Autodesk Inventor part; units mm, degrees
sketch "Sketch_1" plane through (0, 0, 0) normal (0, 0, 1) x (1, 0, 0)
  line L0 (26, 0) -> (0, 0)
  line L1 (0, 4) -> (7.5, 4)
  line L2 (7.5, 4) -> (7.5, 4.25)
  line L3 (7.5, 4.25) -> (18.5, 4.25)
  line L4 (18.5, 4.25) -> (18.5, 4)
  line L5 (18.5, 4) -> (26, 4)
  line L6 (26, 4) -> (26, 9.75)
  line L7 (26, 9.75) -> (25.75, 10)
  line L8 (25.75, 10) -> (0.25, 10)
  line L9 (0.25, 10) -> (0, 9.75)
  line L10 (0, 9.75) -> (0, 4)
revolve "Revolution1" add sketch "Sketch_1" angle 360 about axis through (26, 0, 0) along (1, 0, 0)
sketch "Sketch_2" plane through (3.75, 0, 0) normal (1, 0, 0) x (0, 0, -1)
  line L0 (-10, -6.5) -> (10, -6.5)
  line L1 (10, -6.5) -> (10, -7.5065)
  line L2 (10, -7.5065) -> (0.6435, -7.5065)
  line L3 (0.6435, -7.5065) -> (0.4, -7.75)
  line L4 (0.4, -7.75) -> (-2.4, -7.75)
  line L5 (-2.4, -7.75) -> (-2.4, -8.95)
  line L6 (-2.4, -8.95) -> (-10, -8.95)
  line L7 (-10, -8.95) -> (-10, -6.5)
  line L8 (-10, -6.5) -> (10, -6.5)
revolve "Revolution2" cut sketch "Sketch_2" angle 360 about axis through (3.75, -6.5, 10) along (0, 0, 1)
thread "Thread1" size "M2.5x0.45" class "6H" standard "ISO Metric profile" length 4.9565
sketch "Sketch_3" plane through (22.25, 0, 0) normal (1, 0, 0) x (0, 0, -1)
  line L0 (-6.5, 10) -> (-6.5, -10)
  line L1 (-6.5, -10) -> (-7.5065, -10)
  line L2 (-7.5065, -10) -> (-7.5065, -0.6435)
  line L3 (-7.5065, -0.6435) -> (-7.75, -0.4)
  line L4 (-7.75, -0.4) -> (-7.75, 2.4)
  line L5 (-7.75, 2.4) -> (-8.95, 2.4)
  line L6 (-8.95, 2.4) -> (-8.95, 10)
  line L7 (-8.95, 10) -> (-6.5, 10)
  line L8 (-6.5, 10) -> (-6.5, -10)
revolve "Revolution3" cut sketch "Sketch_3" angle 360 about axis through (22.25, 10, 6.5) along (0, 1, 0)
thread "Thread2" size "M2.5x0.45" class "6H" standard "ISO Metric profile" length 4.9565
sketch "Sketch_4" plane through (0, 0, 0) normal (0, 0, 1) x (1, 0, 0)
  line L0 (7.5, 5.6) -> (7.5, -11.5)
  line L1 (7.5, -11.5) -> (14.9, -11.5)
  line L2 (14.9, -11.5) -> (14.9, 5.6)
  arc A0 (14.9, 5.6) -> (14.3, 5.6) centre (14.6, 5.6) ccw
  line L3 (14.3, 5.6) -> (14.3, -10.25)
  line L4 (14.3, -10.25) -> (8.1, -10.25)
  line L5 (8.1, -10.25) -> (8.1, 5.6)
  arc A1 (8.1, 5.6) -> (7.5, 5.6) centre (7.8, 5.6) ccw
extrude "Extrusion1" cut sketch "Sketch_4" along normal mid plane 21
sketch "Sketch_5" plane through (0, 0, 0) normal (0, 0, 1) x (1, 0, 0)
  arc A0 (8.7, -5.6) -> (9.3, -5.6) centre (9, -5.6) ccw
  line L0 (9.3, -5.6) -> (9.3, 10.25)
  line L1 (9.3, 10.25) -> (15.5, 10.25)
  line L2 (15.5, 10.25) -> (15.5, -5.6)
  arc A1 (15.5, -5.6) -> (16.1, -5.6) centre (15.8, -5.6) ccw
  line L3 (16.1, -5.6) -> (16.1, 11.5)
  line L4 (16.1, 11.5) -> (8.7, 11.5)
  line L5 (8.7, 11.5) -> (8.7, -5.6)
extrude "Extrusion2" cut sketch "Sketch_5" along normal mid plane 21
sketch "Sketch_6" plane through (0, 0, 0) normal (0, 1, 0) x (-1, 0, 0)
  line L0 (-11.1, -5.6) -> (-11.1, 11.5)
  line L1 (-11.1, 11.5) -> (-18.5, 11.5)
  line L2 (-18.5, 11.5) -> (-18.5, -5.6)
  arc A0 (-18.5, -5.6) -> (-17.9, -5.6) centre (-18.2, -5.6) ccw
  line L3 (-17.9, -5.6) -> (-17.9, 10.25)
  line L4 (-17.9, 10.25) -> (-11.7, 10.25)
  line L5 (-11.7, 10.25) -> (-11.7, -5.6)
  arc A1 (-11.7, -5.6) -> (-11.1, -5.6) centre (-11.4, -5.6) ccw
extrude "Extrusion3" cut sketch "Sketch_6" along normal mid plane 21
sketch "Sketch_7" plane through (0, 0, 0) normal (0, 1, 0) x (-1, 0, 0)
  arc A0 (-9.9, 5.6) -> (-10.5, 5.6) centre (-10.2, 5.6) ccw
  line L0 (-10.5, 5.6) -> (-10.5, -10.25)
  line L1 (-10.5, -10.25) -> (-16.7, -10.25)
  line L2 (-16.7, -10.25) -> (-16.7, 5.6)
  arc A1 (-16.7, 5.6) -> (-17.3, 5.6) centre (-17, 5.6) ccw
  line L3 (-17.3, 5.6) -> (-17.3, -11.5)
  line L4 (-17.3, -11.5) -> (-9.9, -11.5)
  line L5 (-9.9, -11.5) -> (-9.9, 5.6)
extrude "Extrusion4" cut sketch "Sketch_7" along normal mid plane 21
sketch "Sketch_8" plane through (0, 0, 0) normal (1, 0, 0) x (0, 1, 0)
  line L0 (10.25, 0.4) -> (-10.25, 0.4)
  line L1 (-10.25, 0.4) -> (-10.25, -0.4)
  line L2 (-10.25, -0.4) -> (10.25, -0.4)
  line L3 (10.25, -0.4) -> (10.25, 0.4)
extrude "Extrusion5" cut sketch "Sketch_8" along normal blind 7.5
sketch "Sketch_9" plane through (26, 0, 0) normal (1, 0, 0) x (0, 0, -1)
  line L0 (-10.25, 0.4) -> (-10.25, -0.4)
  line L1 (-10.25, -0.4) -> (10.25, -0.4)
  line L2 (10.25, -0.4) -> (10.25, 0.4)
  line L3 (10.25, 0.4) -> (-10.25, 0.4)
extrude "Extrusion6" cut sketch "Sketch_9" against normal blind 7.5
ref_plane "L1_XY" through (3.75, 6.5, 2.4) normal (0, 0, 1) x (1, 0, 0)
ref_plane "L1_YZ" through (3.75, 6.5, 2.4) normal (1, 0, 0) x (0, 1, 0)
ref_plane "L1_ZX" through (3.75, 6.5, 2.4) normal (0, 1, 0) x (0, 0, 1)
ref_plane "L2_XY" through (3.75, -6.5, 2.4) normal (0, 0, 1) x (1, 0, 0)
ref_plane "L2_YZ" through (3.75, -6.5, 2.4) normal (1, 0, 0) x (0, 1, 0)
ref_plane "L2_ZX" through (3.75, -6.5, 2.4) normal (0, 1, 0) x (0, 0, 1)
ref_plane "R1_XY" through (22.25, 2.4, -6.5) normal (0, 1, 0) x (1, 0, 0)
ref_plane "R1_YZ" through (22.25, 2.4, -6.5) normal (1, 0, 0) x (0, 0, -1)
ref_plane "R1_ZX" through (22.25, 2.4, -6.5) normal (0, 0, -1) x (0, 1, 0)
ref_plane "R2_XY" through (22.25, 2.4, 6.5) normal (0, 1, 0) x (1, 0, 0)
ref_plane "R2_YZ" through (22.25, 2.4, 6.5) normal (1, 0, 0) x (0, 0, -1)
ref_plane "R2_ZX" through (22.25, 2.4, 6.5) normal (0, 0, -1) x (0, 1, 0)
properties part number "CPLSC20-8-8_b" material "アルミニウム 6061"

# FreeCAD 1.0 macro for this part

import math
import FreeCAD as App
import Part
import Sketcher

V = App.Vector
Q = App.Units.Quantity


def add_polygon(sketch, points):
    """Adds a closed chain of lines whose ends are joined by coincident constraints."""
    first, n = sketch.GeometryCount, len(points)
    for a, b in zip(points, points[1:] + points[:1]):
        sketch.addGeometry(Part.LineSegment(App.Vector(*a, 0), App.Vector(*b, 0)), False)
    for i in range(n):
        sketch.addConstraint(Sketcher.Constraint("Coincident", first + i, 2, first + (i + 1) % n, 1))

doc = App.newDocument("Part")
body = doc.addObject("PartDesign::Body", "Body")

# Sketch on XY plane
sketch1 = body.newObject("Sketcher::SketchObject", "Sketch")
sketch1.AttachmentSupport = (doc.getObject("XY_Plane"), [""])
sketch1.MapMode = "FlatFace"
add_polygon(sketch1, [(0, 9.75), (0, 4), (7.5, 4), (7.5, 4.25), (18.5, 4.25), (18.5, 4), (26, 4), (26, 9.75), (25.75, 10), (0.25, 10)])  # lines 0-9
sketch1.addConstraint(Sketcher.Constraint("Vertical", 0))
sketch1.addConstraint(Sketcher.Constraint("Horizontal", 1))
sketch1.addConstraint(Sketcher.Constraint("Vertical", 2))
sketch1.addConstraint(Sketcher.Constraint("Horizontal", 3))
sketch1.addConstraint(Sketcher.Constraint("Vertical", 4))
sketch1.addConstraint(Sketcher.Constraint("Horizontal", 5))
sketch1.addConstraint(Sketcher.Constraint("Vertical", 6))
sketch1.addConstraint(Sketcher.Constraint("Horizontal", 8))
sketch1.addConstraint(Sketcher.Constraint("PointOnObject", 0, 2, -2))
sketch1.addConstraint(Sketcher.Constraint("Perpendicular", 7, 9))
sketch1.addConstraint(Sketcher.Constraint("Horizontal", 1, 2, 4, 2))
sketch1.addConstraint(Sketcher.Constraint("Horizontal", 6, 2, 9, 2))
sketch1.addConstraint(Sketcher.Constraint("Equal", 1, 5))
sketch1.addConstraint(Sketcher.Constraint("Equal", 7, 9))
sketch1.addConstraint(Sketcher.Constraint("DistanceX", 3, 1, 3, 2, 11.0))
sketch1.addConstraint(Sketcher.Constraint("DistanceX", 1, 1, 1, 2, 7.5))
sketch1.addConstraint(Sketcher.Constraint("DistanceX", 8, 2, 8, 1, 25.5))
sketch1.addConstraint(Sketcher.Constraint("DistanceY", -1, 1, 0, 2, 4.0))
sketch1.addConstraint(Sketcher.Constraint("DistanceY", -1, 1, 7, 2, 10.0))
sketch1.addConstraint(Sketcher.Constraint("DistanceY", 2, 1, 2, 2, 0.25))
revolution = body.newObject("PartDesign::Revolution", "Revolution")
revolution.Profile = sketch1
revolution.ReferenceAxis = (sketch1, ["H_Axis"])
revolution.Angle = 360

# Sketch on YZ plane
sketch2 = body.newObject("Sketcher::SketchObject", "Sketch001")
sketch2.AttachmentSupport = (doc.getObject("YZ_Plane"), [""])
sketch2.MapMode = "FlatFace"
sketch2.AttachmentOffset = App.Placement(V(0, 0, 3.75), App.Rotation())
add_polygon(sketch2, [(-6.5, -10), (-6.5, 10), (-8.95, 10), (-8.95, 2.4), (-7.75, 2.4), (-7.75, -0.4), (-7.5065, -0.6435), (-7.5065, -10)])  # lines 0-7
sketch2.addGeometry(Part.LineSegment(V(-6.5, -10, 0), V(-6.5, 10, 0)), True)  # axis
sketch2.addConstraint(Sketcher.Constraint("Vertical", 0))
sketch2.addConstraint(Sketcher.Constraint("Horizontal", 1))
sketch2.addConstraint(Sketcher.Constraint("Vertical", 2))
sketch2.addConstraint(Sketcher.Constraint("Horizontal", 3))
sketch2.addConstraint(Sketcher.Constraint("Vertical", 4))
sketch2.addConstraint(Sketcher.Constraint("Vertical", 6))
sketch2.addConstraint(Sketcher.Constraint("Horizontal", 7))
sketch2.addConstraint(Sketcher.Constraint("Vertical", 8))
sketch2.addConstraint(Sketcher.Constraint("Coincident", 8, 1, 7, 2))
sketch2.addConstraint(Sketcher.Constraint("Horizontal", 1, 2, 8, 2))
sketch2.addConstraint(Sketcher.Constraint("DistanceY", 0, 1, 0, 2, 20.0))
sketch2.addConstraint(Sketcher.Constraint("Angle", 5, Q("-45 deg")))
sketch2.addConstraint(Sketcher.Constraint("DistanceX", 3, 1, 3, 2, 1.2))
sketch2.addConstraint(Sketcher.Constraint("DistanceY", 2, 2, 2, 1, 7.6))
sketch2.addConstraint(Sketcher.Constraint("DistanceY", 4, 2, 4, 1, 2.8))
sketch2.addConstraint(Sketcher.Constraint("DistanceY", -1, 1, 0, 2, 10.0))
sketch2.addConstraint(Sketcher.Constraint("DistanceX", 1, 2, 1, 1, 2.45))
sketch2.addConstraint(Sketcher.Constraint("DistanceX", 0, 2, -1, 1, 6.5))
sketch2.addConstraint(Sketcher.Constraint("DistanceX", 7, 1, 7, 2, 1.0065))
groove = body.newObject("PartDesign::Groove", "Groove")
groove.Profile = sketch2
groove.ReferenceAxis = (sketch2, ["Axis0"])
groove.Angle = 360

# Sketch on YZ plane
sketch3 = body.newObject("Sketcher::SketchObject", "Sketch002")
sketch3.AttachmentSupport = (doc.getObject("YZ_Plane"), [""])
sketch3.MapMode = "FlatFace"
sketch3.AttachmentOffset = App.Placement(V(0, 0, 22.25), App.Rotation())
add_polygon(sketch3, [(-10, 6.5), (10, 6.5), (10, 8.95), (2.4, 8.95), (2.4, 7.75), (-0.4, 7.75), (-0.6435, 7.5065), (-10, 7.5065)])  # lines 0-7
sketch3.addGeometry(Part.LineSegment(V(-10, 6.5, 0), V(10, 6.5, 0)), True)  # axis
sketch3.addConstraint(Sketcher.Constraint("Horizontal", 0))
sketch3.addConstraint(Sketcher.Constraint("Vertical", 1))
sketch3.addConstraint(Sketcher.Constraint("Horizontal", 2))
sketch3.addConstraint(Sketcher.Constraint("Vertical", 3))
sketch3.addConstraint(Sketcher.Constraint("Horizontal", 4))
sketch3.addConstraint(Sketcher.Constraint("Horizontal", 6))
sketch3.addConstraint(Sketcher.Constraint("Vertical", 7))
sketch3.addConstraint(Sketcher.Constraint("Horizontal", 8))
sketch3.addConstraint(Sketcher.Constraint("Coincident", 8, 1, 7, 2))
sketch3.addConstraint(Sketcher.Constraint("Vertical", 1, 2, 8, 2))
sketch3.addConstraint(Sketcher.Constraint("DistanceX", 0, 1, 0, 2, 20.0))
sketch3.addConstraint(Sketcher.Constraint("Angle", 5, Q("-135 deg")))
sketch3.addConstraint(Sketcher.Constraint("DistanceX", 2, 2, 2, 1, 7.6))
sketch3.addConstraint(Sketcher.Constraint("DistanceX", 4, 2, 4, 1, 2.8))
sketch3.addConstraint(Sketcher.Constraint("DistanceY", 3, 2, 3, 1, 1.2))
sketch3.addConstraint(Sketcher.Constraint("DistanceX", -1, 1, 0, 2, 10.0))
sketch3.addConstraint(Sketcher.Constraint("DistanceY", 1, 1, 1, 2, 2.45))
sketch3.addConstraint(Sketcher.Constraint("DistanceY", -1, 1, 0, 2, 6.5))
sketch3.addConstraint(Sketcher.Constraint("DistanceX", 6, 2, 6, 1, 9.3565))
groove2 = body.newObject("PartDesign::Groove", "Groove001")
groove2.Profile = sketch3
groove2.ReferenceAxis = (sketch3, ["Axis0"])
groove2.Angle = 360

# Sketch on XY plane
sketch4 = body.newObject("Sketcher::SketchObject", "Sketch003")
sketch4.AttachmentSupport = (doc.getObject("XY_Plane"), [""])
sketch4.MapMode = "FlatFace"
sketch4.addGeometry(Part.ArcOfCircle(Part.Circle(V(7.8, 5.6, 0), V(0, 0, 1), 0.3), math.radians(0), math.radians(180)), False)
sketch4.addGeometry(Part.LineSegment(V(7.5, 5.6, 0), V(7.5, -11.5, 0)), False)
sketch4.addGeometry(Part.LineSegment(V(7.5, -11.5, 0), V(14.9, -11.5, 0)), False)
sketch4.addGeometry(Part.LineSegment(V(14.9, -11.5, 0), V(14.9, 5.6, 0)), False)
sketch4.addGeometry(Part.ArcOfCircle(Part.Circle(V(14.6, 5.6, 0), V(0, 0, 1), 0.3), math.radians(0), math.radians(180)), False)
sketch4.addGeometry(Part.LineSegment(V(14.3, 5.6, 0), V(14.3, -10.25, 0)), False)
sketch4.addGeometry(Part.LineSegment(V(14.3, -10.25, 0), V(8.1, -10.25, 0)), False)
sketch4.addGeometry(Part.LineSegment(V(8.1, -10.25, 0), V(8.1, 5.6, 0)), False)
sketch4.addConstraint(Sketcher.Constraint("Tangent", 0, 2, 1, 1))
sketch4.addConstraint(Sketcher.Constraint("Coincident", 1, 2, 2, 1))
sketch4.addConstraint(Sketcher.Constraint("Coincident", 2, 2, 3, 1))
sketch4.addConstraint(Sketcher.Constraint("Tangent", 3, 2, 4, 1))
sketch4.addConstraint(Sketcher.Constraint("Tangent", 4, 2, 5, 1))
sketch4.addConstraint(Sketcher.Constraint("Coincident", 5, 2, 6, 1))
sketch4.addConstraint(Sketcher.Constraint("Coincident", 6, 2, 7, 1))
sketch4.addConstraint(Sketcher.Constraint("Tangent", 7, 2, 0, 1))
sketch4.addConstraint(Sketcher.Constraint("Vertical", 1))
sketch4.addConstraint(Sketcher.Constraint("Horizontal", 2))
sketch4.addConstraint(Sketcher.Constraint("Vertical", 3))
sketch4.addConstraint(Sketcher.Constraint("Vertical", 5))
sketch4.addConstraint(Sketcher.Constraint("Horizontal", 6))
sketch4.addConstraint(Sketcher.Constraint("Vertical", 7))
sketch4.addConstraint(Sketcher.Constraint("Equal", 0, 4))
sketch4.addConstraint(Sketcher.Constraint("Horizontal", 0, 3, 4, 3))
sketch4.addConstraint(Sketcher.Constraint("Radius", 0, 0.3))
sketch4.addConstraint(Sketcher.Constraint("DistanceX", 2, 1, 2, 2, 7.4))
sketch4.addConstraint(Sketcher.Constraint("DistanceY", 1, 2, 1, 1, 17.1))
sketch4.addConstraint(Sketcher.Constraint("DistanceY", 5, 2, 5, 1, 15.85))
sketch4.addConstraint(Sketcher.Constraint("DistanceX", -1, 1, 0, 3, 7.8))
sketch4.addConstraint(Sketcher.Constraint("DistanceY", -1, 1, 0, 3, 5.6))
pocket1 = body.newObject("PartDesign::Pocket", "Pocket")
pocket1.Profile = sketch4
pocket1.Length = 21
pocket1.Midplane = True

# Sketch on XY plane
sketch5 = body.newObject("Sketcher::SketchObject", "Sketch004")
sketch5.AttachmentSupport = (doc.getObject("XY_Plane"), [""])
sketch5.MapMode = "FlatFace"
sketch5.addGeometry(Part.LineSegment(V(8.7, 11.5, 0), V(8.7, -5.6, 0)), False)
sketch5.addGeometry(Part.ArcOfCircle(Part.Circle(V(9, -5.6, 0), V(0, 0, 1), 0.3), math.radians(180), math.radians(360)), False)
sketch5.addGeometry(Part.LineSegment(V(9.3, -5.6, 0), V(9.3, 10.25, 0)), False)
sketch5.addGeometry(Part.LineSegment(V(9.3, 10.25, 0), V(15.5, 10.25, 0)), False)
sketch5.addGeometry(Part.LineSegment(V(15.5, 10.25, 0), V(15.5, -5.6, 0)), False)
sketch5.addGeometry(Part.ArcOfCircle(Part.Circle(V(15.8, -5.6, 0), V(0, 0, 1), 0.3), math.radians(180), math.radians(360)), False)
sketch5.addGeometry(Part.LineSegment(V(16.1, -5.6, 0), V(16.1, 11.5, 0)), False)
sketch5.addGeometry(Part.LineSegment(V(16.1, 11.5, 0), V(8.7, 11.5, 0)), False)
sketch5.addConstraint(Sketcher.Constraint("Tangent", 0, 2, 1, 1))
sketch5.addConstraint(Sketcher.Constraint("Tangent", 1, 2, 2, 1))
sketch5.addConstraint(Sketcher.Constraint("Coincident", 2, 2, 3, 1))
sketch5.addConstraint(Sketcher.Constraint("Coincident", 3, 2, 4, 1))
sketch5.addConstraint(Sketcher.Constraint("Tangent", 4, 2, 5, 1))
sketch5.addConstraint(Sketcher.Constraint("Tangent", 5, 2, 6, 1))
sketch5.addConstraint(Sketcher.Constraint("Coincident", 6, 2, 7, 1))
sketch5.addConstraint(Sketcher.Constraint("Coincident", 7, 2, 0, 1))
sketch5.addConstraint(Sketcher.Constraint("Vertical", 0))
sketch5.addConstraint(Sketcher.Constraint("Vertical", 2))
sketch5.addConstraint(Sketcher.Constraint("Horizontal", 3))
sketch5.addConstraint(Sketcher.Constraint("Vertical", 4))
sketch5.addConstraint(Sketcher.Constraint("Vertical", 6))
sketch5.addConstraint(Sketcher.Constraint("Horizontal", 7))
sketch5.addConstraint(Sketcher.Constraint("Equal", 1, 5))
sketch5.addConstraint(Sketcher.Constraint("Horizontal", 1, 3, 5, 3))
sketch5.addConstraint(Sketcher.Constraint("Radius", 1, 0.3))
sketch5.addConstraint(Sketcher.Constraint("DistanceX", 3, 1, 3, 2, 6.2))
sketch5.addConstraint(Sketcher.Constraint("DistanceY", 0, 2, 0, 1, 17.1))
sketch5.addConstraint(Sketcher.Constraint("DistanceX", -1, 1, 1, 3, 9.0))
sketch5.addConstraint(Sketcher.Constraint("DistanceY", 2, 1, 2, 2, 15.85))
sketch5.addConstraint(Sketcher.Constraint("DistanceY", 1, 3, -1, 1, 5.6))
pocket2 = body.newObject("PartDesign::Pocket", "Pocket001")
pocket2.Profile = sketch5
pocket2.Length = 21
pocket2.Midplane = True

# Sketch on XZ plane
sketch6 = body.newObject("Sketcher::SketchObject", "Sketch005")
sketch6.AttachmentSupport = (doc.getObject("XZ_Plane"), [""])
sketch6.MapMode = "FlatFace"
sketch6.addGeometry(Part.ArcOfCircle(Part.Circle(V(11.4, -5.6, 0), V(0, 0, 1), 0.3), math.radians(180), math.radians(360)), False)
sketch6.addGeometry(Part.LineSegment(V(11.1, -5.6, 0), V(11.1, 11.5, 0)), False)
sketch6.addGeometry(Part.LineSegment(V(11.1, 11.5, 0), V(18.5, 11.5, 0)), False)
sketch6.addGeometry(Part.LineSegment(V(18.5, 11.5, 0), V(18.5, -5.6, 0)), False)
sketch6.addGeometry(Part.ArcOfCircle(Part.Circle(V(18.2, -5.6, 0), V(0, 0, 1), 0.3), math.radians(180), math.radians(360)), False)
sketch6.addGeometry(Part.LineSegment(V(17.9, -5.6, 0), V(17.9, 10.25, 0)), False)
sketch6.addGeometry(Part.LineSegment(V(17.9, 10.25, 0), V(11.7, 10.25, 0)), False)
sketch6.addGeometry(Part.LineSegment(V(11.7, 10.25, 0), V(11.7, -5.6, 0)), False)
sketch6.addConstraint(Sketcher.Constraint("Tangent", 0, 1, 1, 1))
sketch6.addConstraint(Sketcher.Constraint("Coincident", 1, 2, 2, 1))
sketch6.addConstraint(Sketcher.Constraint("Coincident", 2, 2, 3, 1))
sketch6.addConstraint(Sketcher.Constraint("Tangent", 3, 2, 4, 2))
sketch6.addConstraint(Sketcher.Constraint("Tangent", 4, 1, 5, 1))
sketch6.addConstraint(Sketcher.Constraint("Coincident", 5, 2, 6, 1))
sketch6.addConstraint(Sketcher.Constraint("Coincident", 6, 2, 7, 1))
sketch6.addConstraint(Sketcher.Constraint("Tangent", 7, 2, 0, 2))
sketch6.addConstraint(Sketcher.Constraint("Vertical", 1))
sketch6.addConstraint(Sketcher.Constraint("Horizontal", 2))
sketch6.addConstraint(Sketcher.Constraint("Vertical", 3))
sketch6.addConstraint(Sketcher.Constraint("Vertical", 5))
sketch6.addConstraint(Sketcher.Constraint("Horizontal", 6))
sketch6.addConstraint(Sketcher.Constraint("Vertical", 7))
sketch6.addConstraint(Sketcher.Constraint("Equal", 0, 4))
sketch6.addConstraint(Sketcher.Constraint("Horizontal", 0, 3, 4, 3))
sketch6.addConstraint(Sketcher.Constraint("Radius", 0, 0.3))
sketch6.addConstraint(Sketcher.Constraint("DistanceX", 2, 1, 2, 2, 7.4))
sketch6.addConstraint(Sketcher.Constraint("DistanceY", 1, 1, 1, 2, 17.1))
sketch6.addConstraint(Sketcher.Constraint("DistanceY", 5, 1, 5, 2, 15.85))
sketch6.addConstraint(Sketcher.Constraint("DistanceX", -1, 1, 0, 3, 11.4))
sketch6.addConstraint(Sketcher.Constraint("DistanceY", 0, 3, -1, 1, 5.6))
pocket3 = body.newObject("PartDesign::Pocket", "Pocket002")
pocket3.Profile = sketch6
pocket3.Length = 21
pocket3.Midplane = True

# Sketch on XZ plane
sketch7 = body.newObject("Sketcher::SketchObject", "Sketch006")
sketch7.AttachmentSupport = (doc.getObject("XZ_Plane"), [""])
sketch7.MapMode = "FlatFace"
sketch7.addGeometry(Part.LineSegment(V(9.9, -11.5, 0), V(9.9, 5.6, 0)), False)
sketch7.addGeometry(Part.ArcOfCircle(Part.Circle(V(10.2, 5.6, 0), V(0, 0, 1), 0.3), math.radians(0), math.radians(180)), False)
sketch7.addGeometry(Part.LineSegment(V(10.5, 5.6, 0), V(10.5, -10.25, 0)), False)
sketch7.addGeometry(Part.LineSegment(V(10.5, -10.25, 0), V(16.7, -10.25, 0)), False)
sketch7.addGeometry(Part.LineSegment(V(16.7, -10.25, 0), V(16.7, 5.6, 0)), False)
sketch7.addGeometry(Part.ArcOfCircle(Part.Circle(V(17, 5.6, 0), V(0, 0, 1), 0.3), math.radians(0), math.radians(180)), False)
sketch7.addGeometry(Part.LineSegment(V(17.3, 5.6, 0), V(17.3, -11.5, 0)), False)
sketch7.addGeometry(Part.LineSegment(V(17.3, -11.5, 0), V(9.9, -11.5, 0)), False)
sketch7.addConstraint(Sketcher.Constraint("Tangent", 0, 2, 1, 2))
sketch7.addConstraint(Sketcher.Constraint("Tangent", 1, 1, 2, 1))
sketch7.addConstraint(Sketcher.Constraint("Coincident", 2, 2, 3, 1))
sketch7.addConstraint(Sketcher.Constraint("Coincident", 3, 2, 4, 1))
sketch7.addConstraint(Sketcher.Constraint("Tangent", 4, 2, 5, 2))
sketch7.addConstraint(Sketcher.Constraint("Tangent", 5, 1, 6, 1))
sketch7.addConstraint(Sketcher.Constraint("Coincident", 6, 2, 7, 1))
sketch7.addConstraint(Sketcher.Constraint("Coincident", 7, 2, 0, 1))
sketch7.addConstraint(Sketcher.Constraint("Vertical", 0))
sketch7.addConstraint(Sketcher.Constraint("Vertical", 2))
sketch7.addConstraint(Sketcher.Constraint("Horizontal", 3))
sketch7.addConstraint(Sketcher.Constraint("Vertical", 4))
sketch7.addConstraint(Sketcher.Constraint("Vertical", 6))
sketch7.addConstraint(Sketcher.Constraint("Horizontal", 7))
sketch7.addConstraint(Sketcher.Constraint("Equal", 1, 5))
sketch7.addConstraint(Sketcher.Constraint("Horizontal", 1, 3, 5, 3))
sketch7.addConstraint(Sketcher.Constraint("Radius", 1, 0.3))
sketch7.addConstraint(Sketcher.Constraint("DistanceX", 3, 1, 3, 2, 6.2))
sketch7.addConstraint(Sketcher.Constraint("DistanceY", 0, 1, 0, 2, 17.1))
sketch7.addConstraint(Sketcher.Constraint("DistanceX", -1, 1, 5, 3, 17.0))
sketch7.addConstraint(Sketcher.Constraint("DistanceY", 2, 2, 2, 1, 15.85))
sketch7.addConstraint(Sketcher.Constraint("DistanceY", -1, 1, 1, 3, 5.6))
pocket4 = body.newObject("PartDesign::Pocket", "Pocket003")
pocket4.Profile = sketch7
pocket4.Length = 21
pocket4.Midplane = True

# Sketch on YZ plane
sketch8 = body.newObject("Sketcher::SketchObject", "Sketch007")
sketch8.AttachmentSupport = (doc.getObject("YZ_Plane"), [""])
sketch8.MapMode = "FlatFace"
add_polygon(sketch8, [(10.25, -0.4), (10.25, 0.4), (-10.25, 0.4), (-10.25, -0.4)])  # lines 0-3
sketch8.addConstraint(Sketcher.Constraint("Vertical", 0))
sketch8.addConstraint(Sketcher.Constraint("Horizontal", 1))
sketch8.addConstraint(Sketcher.Constraint("Vertical", 2))
sketch8.addConstraint(Sketcher.Constraint("Horizontal", 3))
sketch8.addConstraint(Sketcher.Constraint("Symmetric", 0, 2, 2, 2, -1, 1))
sketch8.addConstraint(Sketcher.Constraint("DistanceX", 1, 2, 1, 1, 20.5))
sketch8.addConstraint(Sketcher.Constraint("DistanceY", 0, 1, 0, 2, 0.8))
pocket5 = body.newObject("PartDesign::Pocket", "Pocket004")
pocket5.Profile = sketch8
pocket5.Length = 7.5
pocket5.Reversed = True

# Sketch on YZ plane
sketch9 = body.newObject("Sketcher::SketchObject", "Sketch008")
sketch9.AttachmentSupport = (doc.getObject("YZ_Plane"), [""])
sketch9.MapMode = "FlatFace"
sketch9.AttachmentOffset = App.Placement(V(0, 0, 26), App.Rotation())
add_polygon(sketch9, [(0.4, -10.25), (0.4, 10.25), (-0.4, 10.25), (-0.4, -10.25)])  # lines 0-3
sketch9.addConstraint(Sketcher.Constraint("Vertical", 0))
sketch9.addConstraint(Sketcher.Constraint("Horizontal", 1))
sketch9.addConstraint(Sketcher.Constraint("Vertical", 2))
sketch9.addConstraint(Sketcher.Constraint("Horizontal", 3))
sketch9.addConstraint(Sketcher.Constraint("Symmetric", 0, 2, 2, 2, -1, 1))
sketch9.addConstraint(Sketcher.Constraint("DistanceX", 1, 2, 1, 1, 0.8))
sketch9.addConstraint(Sketcher.Constraint("DistanceY", 0, 1, 0, 2, 20.5))
pocket6 = body.newObject("PartDesign::Pocket", "Pocket005")
pocket6.Profile = sketch9
pocket6.Length = 7.5

doc.recompute()
